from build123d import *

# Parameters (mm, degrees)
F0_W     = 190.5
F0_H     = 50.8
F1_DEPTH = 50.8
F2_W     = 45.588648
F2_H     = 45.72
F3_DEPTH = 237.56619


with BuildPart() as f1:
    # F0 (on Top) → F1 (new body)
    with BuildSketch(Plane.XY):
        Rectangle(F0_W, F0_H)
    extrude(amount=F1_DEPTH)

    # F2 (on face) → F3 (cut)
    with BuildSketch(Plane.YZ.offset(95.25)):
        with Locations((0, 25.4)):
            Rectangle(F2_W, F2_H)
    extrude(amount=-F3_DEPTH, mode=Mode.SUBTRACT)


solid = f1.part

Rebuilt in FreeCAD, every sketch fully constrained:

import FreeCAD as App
import Part
import Sketcher

V = App.Vector
Q = App.Units.Quantity

doc = App.newDocument("Part")
body = doc.addObject("PartDesign::Body", "Body")

sketch1 = body.newObject("Sketcher::SketchObject", "Sketch")
sketch1.AttachmentSupport = (doc.getObject("XY_Plane"), [""])
sketch1.MapMode = "FlatFace"
sketch1.addGeometry([
    Part.LineSegment(V(-95, 25, 0), V(-95, -25, 0)),
    Part.LineSegment(V(-95, -25, 0), V(95, -25, 0)),
    Part.LineSegment(V(95, -25, 0), V(95, 25, 0)),
    Part.LineSegment(V(95, 25, 0), V(-95, 25, 0)),
], False)
sketch1.addConstraint([
    Sketcher.Constraint("Coincident", 0, 2, 1, 1),
    Sketcher.Constraint("Coincident", 1, 2, 2, 1),
    Sketcher.Constraint("Coincident", 2, 2, 3, 1),
    Sketcher.Constraint("Coincident", 3, 2, 0, 1),
    Sketcher.Constraint("Vertical", 0),
    Sketcher.Constraint("Horizontal", 1),
    Sketcher.Constraint("Vertical", 2),
    Sketcher.Constraint("Horizontal", 3),
    Sketcher.Constraint("Symmetric", 0, 2, 2, 2, -1, 1),
    Sketcher.Constraint("DistanceY", 0, 2, 0, 1, Q("2 in")),
    Sketcher.Constraint("DistanceX", 1, 1, 1, 2, Q("7.5 in")),
])
pad1 = body.newObject("PartDesign::Pad", "Pad")
pad1.Profile = sketch1
pad1.Length = Q("2 in")

sketch2 = body.newObject("Sketcher::SketchObject", "Sketch001")
sketch2.AttachmentSupport = (doc.getObject("YZ_Plane"), [""])
sketch2.MapMode = "FlatFace"
sketch2.AttachmentOffset = App.Placement(V(0, 0, 3.75 * 25.4), App.Rotation())
sketch2.addGeometry([
    Part.LineSegment(V(-23, 48, 0), V(-23, 3, 0)),
    Part.LineSegment(V(-23, 3, 0), V(23, 3, 0)),
    Part.LineSegment(V(23, 3, 0), V(23, 48, 0)),
    Part.LineSegment(V(23, 48, 0), V(-23, 48, 0)),
], False)
sketch2.addConstraint([
    Sketcher.Constraint("Coincident", 0, 2, 1, 1),
    Sketcher.Constraint("Coincident", 1, 2, 2, 1),
    Sketcher.Constraint("Coincident", 2, 2, 3, 1),
    Sketcher.Constraint("Coincident", 3, 2, 0, 1),
    Sketcher.Constraint("Vertical", 0),
    Sketcher.Constraint("Horizontal", 1),
    Sketcher.Constraint("Vertical", 2),
    Sketcher.Constraint("Horizontal", 3),
    Sketcher.Constraint("DistanceY", 0, 2, 0, 1, Q("1.8 in")),
    Sketcher.Constraint("DistanceY", -1, 1, 0, 2, Q("0.1 in")),
    Sketcher.Constraint("DistanceX", 1, 1, 1, 2, Q("45.588648 mm")),
    Sketcher.Constraint("DistanceX", 0, 2, -1, 1, Q("22.794324 mm")),
])
pocket1 = body.newObject("PartDesign::Pocket", "Pocket")
pocket1.Profile = sketch2
pocket1.Length = 237.56619

doc.recompute()
